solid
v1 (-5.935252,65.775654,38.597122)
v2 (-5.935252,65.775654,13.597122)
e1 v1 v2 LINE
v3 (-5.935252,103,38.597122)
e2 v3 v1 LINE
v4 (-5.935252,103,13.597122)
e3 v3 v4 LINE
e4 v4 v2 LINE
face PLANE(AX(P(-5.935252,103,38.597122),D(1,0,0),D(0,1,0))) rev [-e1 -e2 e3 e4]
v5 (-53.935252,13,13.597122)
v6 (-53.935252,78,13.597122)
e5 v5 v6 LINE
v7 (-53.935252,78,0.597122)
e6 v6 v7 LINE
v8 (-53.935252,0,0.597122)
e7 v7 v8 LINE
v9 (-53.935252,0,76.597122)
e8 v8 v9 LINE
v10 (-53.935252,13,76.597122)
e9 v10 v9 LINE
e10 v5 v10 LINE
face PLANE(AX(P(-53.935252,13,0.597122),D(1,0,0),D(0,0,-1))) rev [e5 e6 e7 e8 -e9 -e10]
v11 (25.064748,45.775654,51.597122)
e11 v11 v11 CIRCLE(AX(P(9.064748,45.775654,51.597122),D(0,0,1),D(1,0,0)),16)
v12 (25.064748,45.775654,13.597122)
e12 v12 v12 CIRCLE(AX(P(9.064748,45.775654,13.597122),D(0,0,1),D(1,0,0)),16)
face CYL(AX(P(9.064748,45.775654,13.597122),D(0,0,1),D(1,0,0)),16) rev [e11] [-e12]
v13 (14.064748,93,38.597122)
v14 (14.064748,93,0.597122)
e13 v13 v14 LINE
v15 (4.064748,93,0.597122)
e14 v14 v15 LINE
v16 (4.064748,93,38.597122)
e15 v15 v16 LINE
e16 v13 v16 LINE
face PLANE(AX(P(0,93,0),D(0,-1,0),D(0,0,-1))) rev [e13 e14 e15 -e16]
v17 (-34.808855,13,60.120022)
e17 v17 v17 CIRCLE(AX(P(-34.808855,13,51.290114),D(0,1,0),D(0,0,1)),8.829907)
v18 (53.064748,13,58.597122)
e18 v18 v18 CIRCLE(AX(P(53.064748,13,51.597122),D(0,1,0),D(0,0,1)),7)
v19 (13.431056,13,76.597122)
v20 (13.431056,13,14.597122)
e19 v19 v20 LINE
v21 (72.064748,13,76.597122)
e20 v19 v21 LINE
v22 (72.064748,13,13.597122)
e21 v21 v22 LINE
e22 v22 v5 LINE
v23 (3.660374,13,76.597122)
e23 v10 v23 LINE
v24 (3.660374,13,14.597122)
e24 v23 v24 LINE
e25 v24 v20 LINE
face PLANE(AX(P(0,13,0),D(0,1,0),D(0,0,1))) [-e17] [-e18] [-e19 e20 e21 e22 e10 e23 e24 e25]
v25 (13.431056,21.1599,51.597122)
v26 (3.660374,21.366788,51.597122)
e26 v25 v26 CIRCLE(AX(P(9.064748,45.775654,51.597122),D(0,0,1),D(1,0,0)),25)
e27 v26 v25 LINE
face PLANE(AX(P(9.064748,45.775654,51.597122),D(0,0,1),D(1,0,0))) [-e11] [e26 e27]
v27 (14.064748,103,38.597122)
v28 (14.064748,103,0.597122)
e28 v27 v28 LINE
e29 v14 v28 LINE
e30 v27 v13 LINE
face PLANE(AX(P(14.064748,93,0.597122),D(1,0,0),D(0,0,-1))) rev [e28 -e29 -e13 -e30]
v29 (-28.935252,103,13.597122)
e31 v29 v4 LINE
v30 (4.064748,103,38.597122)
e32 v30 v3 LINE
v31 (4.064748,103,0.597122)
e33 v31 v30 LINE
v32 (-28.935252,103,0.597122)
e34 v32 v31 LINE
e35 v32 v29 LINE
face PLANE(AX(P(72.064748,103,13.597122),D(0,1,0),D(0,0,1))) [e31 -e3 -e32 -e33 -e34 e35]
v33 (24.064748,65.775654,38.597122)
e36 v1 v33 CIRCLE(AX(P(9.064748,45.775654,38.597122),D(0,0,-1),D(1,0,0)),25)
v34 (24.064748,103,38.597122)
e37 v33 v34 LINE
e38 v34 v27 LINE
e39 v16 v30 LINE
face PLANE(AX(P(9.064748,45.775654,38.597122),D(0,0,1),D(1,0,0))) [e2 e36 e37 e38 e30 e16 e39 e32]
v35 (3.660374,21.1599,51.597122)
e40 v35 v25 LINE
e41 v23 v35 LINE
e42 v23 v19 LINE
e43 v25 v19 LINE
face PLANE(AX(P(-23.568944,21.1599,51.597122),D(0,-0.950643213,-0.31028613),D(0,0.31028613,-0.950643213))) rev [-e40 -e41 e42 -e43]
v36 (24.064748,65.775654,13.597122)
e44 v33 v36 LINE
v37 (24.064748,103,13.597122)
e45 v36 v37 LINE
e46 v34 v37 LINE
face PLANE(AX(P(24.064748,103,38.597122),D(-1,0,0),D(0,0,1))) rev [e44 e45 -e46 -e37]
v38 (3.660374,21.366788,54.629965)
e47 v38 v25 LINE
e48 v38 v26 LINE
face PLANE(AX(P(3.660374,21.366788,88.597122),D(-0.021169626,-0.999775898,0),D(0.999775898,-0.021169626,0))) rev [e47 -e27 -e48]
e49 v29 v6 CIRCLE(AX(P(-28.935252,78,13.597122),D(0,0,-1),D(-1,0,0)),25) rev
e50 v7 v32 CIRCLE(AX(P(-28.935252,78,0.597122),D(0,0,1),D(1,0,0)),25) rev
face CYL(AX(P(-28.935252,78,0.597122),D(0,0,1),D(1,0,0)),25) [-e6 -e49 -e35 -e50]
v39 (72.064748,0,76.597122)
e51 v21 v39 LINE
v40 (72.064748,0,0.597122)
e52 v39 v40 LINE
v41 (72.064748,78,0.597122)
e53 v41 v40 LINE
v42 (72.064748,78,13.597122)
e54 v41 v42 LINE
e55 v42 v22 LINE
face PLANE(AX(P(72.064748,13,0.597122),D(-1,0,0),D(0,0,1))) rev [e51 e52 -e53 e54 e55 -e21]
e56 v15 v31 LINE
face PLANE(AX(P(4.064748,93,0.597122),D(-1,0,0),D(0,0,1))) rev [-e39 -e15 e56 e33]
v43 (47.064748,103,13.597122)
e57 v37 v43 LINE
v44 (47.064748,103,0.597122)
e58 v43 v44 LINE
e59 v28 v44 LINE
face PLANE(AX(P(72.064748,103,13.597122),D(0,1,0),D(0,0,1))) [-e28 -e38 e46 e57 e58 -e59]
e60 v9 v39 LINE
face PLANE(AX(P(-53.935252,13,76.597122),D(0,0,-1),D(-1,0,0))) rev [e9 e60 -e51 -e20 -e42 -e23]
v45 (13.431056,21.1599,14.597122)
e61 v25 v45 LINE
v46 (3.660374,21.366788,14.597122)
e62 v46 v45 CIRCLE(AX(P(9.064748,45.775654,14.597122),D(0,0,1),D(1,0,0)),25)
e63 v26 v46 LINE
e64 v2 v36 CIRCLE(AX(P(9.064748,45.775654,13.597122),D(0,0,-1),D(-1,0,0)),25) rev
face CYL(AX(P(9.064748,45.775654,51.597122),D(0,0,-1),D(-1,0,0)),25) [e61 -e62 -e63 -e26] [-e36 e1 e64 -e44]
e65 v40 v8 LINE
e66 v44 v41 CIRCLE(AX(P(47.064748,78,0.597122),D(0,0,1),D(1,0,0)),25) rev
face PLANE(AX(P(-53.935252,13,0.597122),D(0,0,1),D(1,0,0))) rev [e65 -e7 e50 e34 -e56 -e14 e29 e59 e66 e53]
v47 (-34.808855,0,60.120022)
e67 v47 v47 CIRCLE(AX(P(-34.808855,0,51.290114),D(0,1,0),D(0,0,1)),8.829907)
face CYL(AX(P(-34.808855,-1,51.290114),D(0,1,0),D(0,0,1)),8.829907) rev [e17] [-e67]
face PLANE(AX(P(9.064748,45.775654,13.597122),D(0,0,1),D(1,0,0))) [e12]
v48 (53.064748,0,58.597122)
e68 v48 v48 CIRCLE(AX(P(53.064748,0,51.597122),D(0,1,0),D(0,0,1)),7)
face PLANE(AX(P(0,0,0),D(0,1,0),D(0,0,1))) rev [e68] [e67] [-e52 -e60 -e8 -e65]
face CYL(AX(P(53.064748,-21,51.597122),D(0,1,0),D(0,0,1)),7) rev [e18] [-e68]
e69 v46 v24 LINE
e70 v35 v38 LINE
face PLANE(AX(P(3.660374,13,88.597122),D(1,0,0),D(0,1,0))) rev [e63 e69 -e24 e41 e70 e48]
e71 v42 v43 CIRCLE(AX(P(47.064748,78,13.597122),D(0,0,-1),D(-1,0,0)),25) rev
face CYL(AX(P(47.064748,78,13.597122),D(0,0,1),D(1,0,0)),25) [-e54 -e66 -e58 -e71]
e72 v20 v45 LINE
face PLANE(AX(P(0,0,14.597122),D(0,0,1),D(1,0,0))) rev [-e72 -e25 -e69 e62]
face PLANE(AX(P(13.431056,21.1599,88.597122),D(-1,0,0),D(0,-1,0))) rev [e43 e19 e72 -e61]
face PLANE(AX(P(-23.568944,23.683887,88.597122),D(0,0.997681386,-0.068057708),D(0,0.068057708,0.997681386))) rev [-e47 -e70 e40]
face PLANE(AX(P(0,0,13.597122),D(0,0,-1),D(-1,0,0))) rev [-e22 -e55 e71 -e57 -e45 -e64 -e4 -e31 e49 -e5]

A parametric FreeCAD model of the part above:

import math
import FreeCAD as App
import Part
import Sketcher


def edges_at(feature, points):
    """Names of the edges that pass closest to the given points."""
    edges = feature.Shape.Edges
    near = lambda p: min(range(len(edges)), key=lambda i: edges[i].distToShape(Part.Vertex(*p))[0])
    return sorted({f"Edge{near(p) + 1}" for p in points})


def add_polygon(sketch, points):
    """Adds a closed chain of lines whose ends are joined by coincident constraints."""
    first, n = sketch.GeometryCount, len(points)
    for a, b in zip(points, points[1:] + points[:1]):
        sketch.addGeometry(Part.LineSegment(App.Vector(*a, 0), App.Vector(*b, 0)), False)
    for i in range(n):
        sketch.addConstraint(Sketcher.Constraint("Coincident", first + i, 2, first + (i + 1) % n, 1))

doc = App.newDocument("Part")
params = doc.addObject("Spreadsheet::Sheet", "Params")
for row, (alias, value) in enumerate([
    ("sketch1_width", "126 mm"),
    ("sketch1_height", "76 mm"),
    ("pad1_length", "13 mm"),
    ("sketch2_width", "126 mm"),
    ("sketch2_height", "90 mm"),
    ("pad2_length", "13 mm"),
    ("fillet_radius", "25 mm"),
    ("sketch3_width", "10 mm"),
    ("pad3_length", "10 mm"),
    ("sketch4_width", "10 mm"),
    ("sketch4_height", "13 mm"),
    ("pocket1_length", "10 mm"),
    ("sketch5_diameter", "50 mm"),
    ("pad4_length", "38 mm"),
    ("sketch6_diameter", "32 mm"),
    ("pocket2_length", "38 mm"),
    ("sketch7_radius", "25 mm"),
    ("sketch7_width", "10 mm"),
    ("pad5_length", "25 mm"),
    ("sketch8_width", "10 mm"),
    ("pocket3_length", "45 mm"),
    ("pocket4_length", "14 mm"),
    ("sketch10_diameter", "14 mm"),
    ("pocket5_length", "34 mm"),
    ("pad6_length", "74 mm"),
    ("sketch12_height", "12 mm"),
    ("pocket6_length", "74 mm"),
], start=1):
    params.set(f"A{row}", alias)
    params.set(f"B{row}", "=" + value)
    params.setAlias(f"B{row}", alias)

body = doc.addObject("PartDesign::Body", "Body")
body.AllowCompound = True

sketch1 = doc.addObject("Sketcher::SketchObject", "Sketch")
body.addObject(sketch1)
sketch1.AttachmentSupport = (doc.XZ_Plane, [""])
sketch1.MapMode = "FlatFace"
add_polygon(sketch1, [(-54, 1), (-54, 77), (72, 77), (72, 1)])
sketch1.addConstraint([
    Sketcher.Constraint("Vertical", 0),
    Sketcher.Constraint("Horizontal", 1),
    Sketcher.Constraint("Vertical", 2),
    Sketcher.Constraint("Horizontal", 3),
    Sketcher.Constraint("DistanceX", 1, 1, 1, 2, 126.0),
    Sketcher.Constraint("DistanceY", 0, 1, 0, 2, 76.0),
    Sketcher.Constraint("DistanceX", 0, 2, -1, 1, 53.935252),
    Sketcher.Constraint("DistanceY", -1, 1, 0, 2, 76.597122),
])
sketch1.setExpression("Constraints[8]", "Params.sketch1_width")
sketch1.setExpression("Constraints[9]", "Params.sketch1_height")
pad1 = doc.addObject("PartDesign::Pad", "Pad")
body.addObject(pad1)
pad1.Profile = sketch1
pad1.setExpression("Length", "Params.pad1_length")
pad1.Reversed = True

sketch2 = doc.addObject("Sketcher::SketchObject", "Sketch001")
body.addObject(sketch2)
sketch2.AttachmentSupport = (doc.XY_Plane, [""])
sketch2.MapMode = "FlatFace"
sketch2.AttachmentOffset = App.Placement(App.Vector(0, 0, 0.597122), App.Rotation())
add_polygon(sketch2, [(72, 103), (72, 13), (-54, 13), (-54, 103)])
sketch2.addConstraint([
    Sketcher.Constraint("Vertical", 0),
    Sketcher.Constraint("Horizontal", 1),
    Sketcher.Constraint("Vertical", 2),
    Sketcher.Constraint("Horizontal", 3),
    Sketcher.Constraint("DistanceX", 1, 2, 1, 1, 126.0),
    Sketcher.Constraint("DistanceY", 0, 2, 0, 1, 90.0),
    Sketcher.Constraint("DistanceY", -1, 1, 0, 2, 13.0),
    Sketcher.Constraint("DistanceX", -1, 1, 0, 2, 72.064748),
])
sketch2.setExpression("Constraints[8]", "Params.sketch2_width")
sketch2.setExpression("Constraints[9]", "Params.sketch2_height")
pad2 = doc.addObject("PartDesign::Pad", "Pad001")
body.addObject(pad2)
pad2.Profile = sketch2
pad2.setExpression("Length", "Params.pad2_length")
doc.recompute()

fillet = doc.addObject("PartDesign::Fillet", "Fillet")
body.addObject(fillet)
fillet.Base = (pad2, edges_at(pad2, [(72.065, 103, 7.097), (-53.935, 103, 7.097)]))
fillet.setExpression("Radius", "Params.fillet_radius")

sketch3 = doc.addObject("Sketcher::SketchObject", "Sketch002")
body.addObject(sketch3)
sketch3.AttachmentSupport = (doc.XZ_Plane, [""])
sketch3.MapMode = "FlatFace"
sketch3.AttachmentOffset = App.Placement(App.Vector(0, 0, -103), App.Rotation())
add_polygon(sketch3, [(4, 14), (4, 39), (14, 39), (14, 14)])
sketch3.addConstraint([
    Sketcher.Constraint("Vertical", 0),
    Sketcher.Constraint("Horizontal", 1),
    Sketcher.Constraint("Vertical", 2),
    Sketcher.Constraint("Horizontal", 3),
    Sketcher.Constraint("DistanceX", 1, 1, 1, 2, 10.0),
    Sketcher.Constraint("DistanceY", 0, 1, 0, 2, 25.459891),
    Sketcher.Constraint("DistanceX", -1, 1, 0, 2, 4.064748),
    Sketcher.Constraint("DistanceY", -1, 1, 0, 2, 39.057013),
])
sketch3.setExpression("Constraints[8]", "Params.sketch3_width")
pad3 = doc.addObject("PartDesign::Pad", "Pad002")
body.addObject(pad3)
pad3.Profile = sketch3
pad3.setExpression("Length", "Params.pad3_length")

sketch4 = doc.addObject("Sketcher::SketchObject", "Sketch003")
body.addObject(sketch4)
sketch4.AttachmentSupport = (doc.XZ_Plane, [""])
sketch4.MapMode = "FlatFace"
sketch4.AttachmentOffset = App.Placement(App.Vector(0, 0, -103), App.Rotation())
add_polygon(sketch4, [(4, 1), (4, 14), (14, 14), (14, 1)])
sketch4.addConstraint([
    Sketcher.Constraint("Vertical", 0),
    Sketcher.Constraint("Horizontal", 1),
    Sketcher.Constraint("Vertical", 2),
    Sketcher.Constraint("Horizontal", 3),
    Sketcher.Constraint("DistanceX", 1, 1, 1, 2, 10.0),
    Sketcher.Constraint("DistanceY", 0, 1, 0, 2, 13.0),
    Sketcher.Constraint("DistanceX", -1, 1, 0, 2, 4.064748),
    Sketcher.Constraint("DistanceY", -1, 1, 0, 2, 13.597122),
])
sketch4.setExpression("Constraints[8]", "Params.sketch4_width")
sketch4.setExpression("Constraints[9]", "Params.sketch4_height")
pocket1 = doc.addObject("PartDesign::Pocket", "Pocket")
body.addObject(pocket1)
pocket1.Profile = sketch4
pocket1.setExpression("Length", "Params.pocket1_length")
pocket1.Reversed = True

sketch5 = doc.addObject("Sketcher::SketchObject", "Sketch004")
body.addObject(sketch5)
sketch5.AttachmentSupport = (doc.XY_Plane, [""])
sketch5.MapMode = "FlatFace"
sketch5.AttachmentOffset = App.Placement(App.Vector(0, 0, 13.597122), App.Rotation())
sketch5.addGeometry(Part.Circle(App.Vector(9, 46, 0), App.Vector(0, 0, 1), 25), False)
sketch5.addConstraint([
    Sketcher.Constraint("Diameter", 0, 50.0),
    Sketcher.Constraint("DistanceX", -1, 1, 0, 3, 9.064748),
    Sketcher.Constraint("DistanceY", -1, 1, 0, 3, 45.775654),
])
sketch5.setExpression("Constraints[0]", "Params.sketch5_diameter")
pad4 = doc.addObject("PartDesign::Pad", "Pad003")
body.addObject(pad4)
pad4.Profile = sketch5
pad4.setExpression("Length", "Params.pad4_length")

sketch6 = doc.addObject("Sketcher::SketchObject", "Sketch005")
body.addObject(sketch6)
sketch6.AttachmentSupport = (doc.XY_Plane, [""])
sketch6.MapMode = "FlatFace"
sketch6.AttachmentOffset = App.Placement(App.Vector(0, 0, 51.597122), App.Rotation())
sketch6.addGeometry(Part.Circle(App.Vector(9, 46, 0), App.Vector(0, 0, 1), 16), False)
sketch6.addConstraint([
    Sketcher.Constraint("Diameter", 0, 32.0),
    Sketcher.Constraint("DistanceX", -1, 1, 0, 3, 9.064748),
    Sketcher.Constraint("DistanceY", -1, 1, 0, 3, 45.775654),
])
sketch6.setExpression("Constraints[0]", "Params.sketch6_diameter")
pocket2 = doc.addObject("PartDesign::Pocket", "Pocket001")
body.addObject(pocket2)
pocket2.Profile = sketch6
pocket2.setExpression("Length", "Params.pocket2_length")

sketch7 = doc.addObject("Sketcher::SketchObject", "Sketch006")
body.addObject(sketch7)
sketch7.AttachmentSupport = (doc.XY_Plane, [""])
sketch7.MapMode = "FlatFace"
sketch7.AttachmentOffset = App.Placement(App.Vector(0, 0, 13.597122), App.Rotation())
sketch7.addGeometry([
    Part.LineSegment(App.Vector(4, 103, 0), App.Vector(-6, 103, 0)),
    Part.LineSegment(App.Vector(-6, 103, 0), App.Vector(-6, 66, 0)),
    Part.ArcOfCircle(Part.Circle(App.Vector(9, 46, 0), App.Vector(0, 0, 1), 25), math.radians(53), math.radians(127)),
    Part.LineSegment(App.Vector(24, 66, 0), App.Vector(24, 103, 0)),
    Part.LineSegment(App.Vector(24, 103, 0), App.Vector(14, 103, 0)),
    Part.LineSegment(App.Vector(14, 103, 0), App.Vector(14, 93, 0)),
    Part.LineSegment(App.Vector(14, 93, 0), App.Vector(4, 93, 0)),
    Part.LineSegment(App.Vector(4, 93, 0), App.Vector(4, 103, 0)),
], False)
sketch7.addConstraint([
    Sketcher.Constraint("Coincident", 0, 2, 1, 1),
    Sketcher.Constraint("Coincident", 1, 2, 2, 2),
    Sketcher.Constraint("Coincident", 2, 1, 3, 1),
    Sketcher.Constraint("Coincident", 3, 2, 4, 1),
    Sketcher.Constraint("Coincident", 4, 2, 5, 1),
    Sketcher.Constraint("Coincident", 5, 2, 6, 1),
    Sketcher.Constraint("Coincident", 6, 2, 7, 1),
    Sketcher.Constraint("Coincident", 7, 2, 0, 1),
    Sketcher.Constraint("Horizontal", 0),
    Sketcher.Constraint("Vertical", 1),
    Sketcher.Constraint("Vertical", 3),
    Sketcher.Constraint("Horizontal", 4),
    Sketcher.Constraint("Vertical", 5),
    Sketcher.Constraint("Horizontal", 6),
    Sketcher.Constraint("Vertical", 7),
    Sketcher.Constraint("Horizontal", 1, 2, 2, 1),
    Sketcher.Constraint("Horizontal", 0, 2, 3, 2),
    Sketcher.Constraint("Equal", 0, 4),
    Sketcher.Constraint("Equal", 4, 6),
    Sketcher.Constraint("Equal", 6, 5),
    Sketcher.Constraint("Radius", 2, 25.0),
    Sketcher.Constraint("DistanceX", 0, 2, 0, 1, 10.0),
    Sketcher.Constraint("DistanceY", -1, 1, 0, 2, 103.0),
    Sketcher.Constraint("DistanceY", 1, 2, 1, 1, 37.224346),
    Sketcher.Constraint("DistanceX", -1, 1, 2, 3, 9.064748),
])
sketch7.setExpression("Constraints[20]", "Params.sketch7_radius")
sketch7.setExpression("Constraints[21]", "Params.sketch7_width")
pad5 = doc.addObject("PartDesign::Pad", "Pad004")
body.addObject(pad5)
pad5.Profile = sketch7
pad5.setExpression("Length", "Params.pad5_length")

sketch8 = doc.addObject("Sketcher::SketchObject", "Sketch007")
body.addObject(sketch8)
sketch8.AttachmentSupport = (doc.XY_Plane, [""])
sketch8.MapMode = "FlatFace"
sketch8.AttachmentOffset = App.Placement(App.Vector(0, 0, 39.057013), App.Rotation())
add_polygon(sketch8, [(4, 103), (4, 93), (14, 93), (14, 103)])
sketch8.addConstraint([
    Sketcher.Constraint("Vertical", 0),
    Sketcher.Constraint("Horizontal", 1),
    Sketcher.Constraint("Vertical", 2),
    Sketcher.Constraint("Horizontal", 3),
    Sketcher.Constraint("Equal", 3, 0),
    Sketcher.Constraint("DistanceX", 1, 1, 1, 2, 10.0),
    Sketcher.Constraint("DistanceY", -1, 1, 0, 2, 93.0),
    Sketcher.Constraint("DistanceX", -1, 1, 0, 2, 4.064748),
])
sketch8.setExpression("Constraints[9]", "Params.sketch8_width")
pocket3 = doc.addObject("PartDesign::Pocket", "Pocket002")
body.addObject(pocket3)
pocket3.Profile = sketch8
pocket3.setExpression("Length", "Params.pocket3_length")

sketch9 = doc.addObject("Sketcher::SketchObject", "Sketch008")
body.addObject(sketch9)
sketch9.AttachmentSupport = (doc.XZ_Plane, [""])
sketch9.MapMode = "FlatFace"
sketch9.AttachmentOffset = App.Placement(App.Vector(0, 0, -13), App.Rotation())
sketch9.addGeometry(Part.Circle(App.Vector(-35, 51, 0), App.Vector(0, 0, 1), 9), False)
sketch9.addConstraint([
    Sketcher.Constraint("Diameter", 0, 17.659815),
    Sketcher.Constraint("DistanceX", 0, 3, -1, 1, 34.808855),
    Sketcher.Constraint("DistanceY", -1, 1, 0, 3, 51.290114),
])
pocket4 = doc.addObject("PartDesign::Pocket", "Pocket003")
body.addObject(pocket4)
pocket4.Profile = sketch9
pocket4.setExpression("Length", "Params.pocket4_length")
pocket4.Reversed = True

sketch10 = doc.addObject("Sketcher::SketchObject", "Sketch009")
body.addObject(sketch10)
sketch10.AttachmentSupport = (doc.XZ_Plane, [""])
sketch10.MapMode = "FlatFace"
sketch10.AttachmentOffset = App.Placement(App.Vector(0, 0, -13), App.Rotation())
sketch10.addGeometry(Part.Circle(App.Vector(53, 52, 0), App.Vector(0, 0, 1), 7), False)
sketch10.addConstraint([
    Sketcher.Constraint("Diameter", 0, 14.0),
    Sketcher.Constraint("DistanceX", -1, 1, 0, 3, 53.064748),
    Sketcher.Constraint("DistanceY", -1, 1, 0, 3, 51.597122),
])
sketch10.setExpression("Constraints[0]", "Params.sketch10_diameter")
pocket5 = doc.addObject("PartDesign::Pocket", "Pocket004")
body.addObject(pocket5)
pocket5.Profile = sketch10
pocket5.setExpression("Length", "Params.pocket5_length")
pocket5.Reversed = True

sketch11 = doc.addObject("Sketcher::SketchObject", "Sketch010")
body.addObject(sketch11)
sketch11.AttachmentSupport = (doc.XY_Plane, [""])
sketch11.MapMode = "FlatFace"
sketch11.AttachmentOffset = App.Placement(App.Vector(0, 0, 51.597122), App.Rotation())
add_polygon(sketch11, [(13, 21), (4, 21), (4, 13), (13, 13)])
sketch11.addConstraint([
    Sketcher.Constraint("Vertical", 1),
    Sketcher.Constraint("Horizontal", 2),
    Sketcher.Constraint("Vertical", 3),
    Sketcher.Constraint("DistanceY", -1, 1, 1, 2, 13.0),
    Sketcher.Constraint("DistanceY", 3, 1, 3, 2, 8.1599),
    Sketcher.Constraint("DistanceX", 2, 1, 2, 2, 9.770682),
    Sketcher.Constraint("DistanceY", 1, 2, 1, 1, 8.366788),
    Sketcher.Constraint("DistanceX", -1, 1, 0, 2, 3.660374),
])
pad6 = doc.addObject("PartDesign::Pad", "Pad005")
body.addObject(pad6)
pad6.Profile = sketch11
pad6.setExpression("Length", "Params.pad6_length")
pad6.Midplane = True

sketch12 = doc.addObject("Sketcher::SketchObject", "Sketch011")
body.addObject(sketch12)
sketch12.AttachmentSupport = (doc.YZ_Plane, [""])
sketch12.MapMode = "FlatFace"
sketch12.AttachmentOffset = App.Placement(App.Vector(0, 0, 13.431056), App.Rotation())
add_polygon(sketch12, [(13, 77), (21, 52), (24, 89), (13, 89)])
sketch12.addConstraint([
    Sketcher.Constraint("Horizontal", 2),
    Sketcher.Constraint("Vertical", 3),
    Sketcher.Constraint("DistanceY", 3, 2, 3, 1, 12.0),
    Sketcher.Constraint("DistanceX", -1, 1, 2, 2, 13.0),
    Sketcher.Constraint("DistanceY", 0, 2, 1, 2, 37.0),
    Sketcher.Constraint("DistanceX", -1, 1, 0, 2, 21.1599),
    Sketcher.Constraint("Distance", 1, 37.085988),
    Sketcher.Constraint("DistanceY", -1, 1, 0, 2, 51.597122),
])
sketch12.setExpression("Constraints[6]", "Params.sketch12_height")
pocket6 = doc.addObject("PartDesign::Pocket", "Pocket005")
body.addObject(pocket6)
pocket6.Profile = sketch12
pocket6.setExpression("Length", "Params.pocket6_length")
pocket6.Midplane = True

doc.recompute()
